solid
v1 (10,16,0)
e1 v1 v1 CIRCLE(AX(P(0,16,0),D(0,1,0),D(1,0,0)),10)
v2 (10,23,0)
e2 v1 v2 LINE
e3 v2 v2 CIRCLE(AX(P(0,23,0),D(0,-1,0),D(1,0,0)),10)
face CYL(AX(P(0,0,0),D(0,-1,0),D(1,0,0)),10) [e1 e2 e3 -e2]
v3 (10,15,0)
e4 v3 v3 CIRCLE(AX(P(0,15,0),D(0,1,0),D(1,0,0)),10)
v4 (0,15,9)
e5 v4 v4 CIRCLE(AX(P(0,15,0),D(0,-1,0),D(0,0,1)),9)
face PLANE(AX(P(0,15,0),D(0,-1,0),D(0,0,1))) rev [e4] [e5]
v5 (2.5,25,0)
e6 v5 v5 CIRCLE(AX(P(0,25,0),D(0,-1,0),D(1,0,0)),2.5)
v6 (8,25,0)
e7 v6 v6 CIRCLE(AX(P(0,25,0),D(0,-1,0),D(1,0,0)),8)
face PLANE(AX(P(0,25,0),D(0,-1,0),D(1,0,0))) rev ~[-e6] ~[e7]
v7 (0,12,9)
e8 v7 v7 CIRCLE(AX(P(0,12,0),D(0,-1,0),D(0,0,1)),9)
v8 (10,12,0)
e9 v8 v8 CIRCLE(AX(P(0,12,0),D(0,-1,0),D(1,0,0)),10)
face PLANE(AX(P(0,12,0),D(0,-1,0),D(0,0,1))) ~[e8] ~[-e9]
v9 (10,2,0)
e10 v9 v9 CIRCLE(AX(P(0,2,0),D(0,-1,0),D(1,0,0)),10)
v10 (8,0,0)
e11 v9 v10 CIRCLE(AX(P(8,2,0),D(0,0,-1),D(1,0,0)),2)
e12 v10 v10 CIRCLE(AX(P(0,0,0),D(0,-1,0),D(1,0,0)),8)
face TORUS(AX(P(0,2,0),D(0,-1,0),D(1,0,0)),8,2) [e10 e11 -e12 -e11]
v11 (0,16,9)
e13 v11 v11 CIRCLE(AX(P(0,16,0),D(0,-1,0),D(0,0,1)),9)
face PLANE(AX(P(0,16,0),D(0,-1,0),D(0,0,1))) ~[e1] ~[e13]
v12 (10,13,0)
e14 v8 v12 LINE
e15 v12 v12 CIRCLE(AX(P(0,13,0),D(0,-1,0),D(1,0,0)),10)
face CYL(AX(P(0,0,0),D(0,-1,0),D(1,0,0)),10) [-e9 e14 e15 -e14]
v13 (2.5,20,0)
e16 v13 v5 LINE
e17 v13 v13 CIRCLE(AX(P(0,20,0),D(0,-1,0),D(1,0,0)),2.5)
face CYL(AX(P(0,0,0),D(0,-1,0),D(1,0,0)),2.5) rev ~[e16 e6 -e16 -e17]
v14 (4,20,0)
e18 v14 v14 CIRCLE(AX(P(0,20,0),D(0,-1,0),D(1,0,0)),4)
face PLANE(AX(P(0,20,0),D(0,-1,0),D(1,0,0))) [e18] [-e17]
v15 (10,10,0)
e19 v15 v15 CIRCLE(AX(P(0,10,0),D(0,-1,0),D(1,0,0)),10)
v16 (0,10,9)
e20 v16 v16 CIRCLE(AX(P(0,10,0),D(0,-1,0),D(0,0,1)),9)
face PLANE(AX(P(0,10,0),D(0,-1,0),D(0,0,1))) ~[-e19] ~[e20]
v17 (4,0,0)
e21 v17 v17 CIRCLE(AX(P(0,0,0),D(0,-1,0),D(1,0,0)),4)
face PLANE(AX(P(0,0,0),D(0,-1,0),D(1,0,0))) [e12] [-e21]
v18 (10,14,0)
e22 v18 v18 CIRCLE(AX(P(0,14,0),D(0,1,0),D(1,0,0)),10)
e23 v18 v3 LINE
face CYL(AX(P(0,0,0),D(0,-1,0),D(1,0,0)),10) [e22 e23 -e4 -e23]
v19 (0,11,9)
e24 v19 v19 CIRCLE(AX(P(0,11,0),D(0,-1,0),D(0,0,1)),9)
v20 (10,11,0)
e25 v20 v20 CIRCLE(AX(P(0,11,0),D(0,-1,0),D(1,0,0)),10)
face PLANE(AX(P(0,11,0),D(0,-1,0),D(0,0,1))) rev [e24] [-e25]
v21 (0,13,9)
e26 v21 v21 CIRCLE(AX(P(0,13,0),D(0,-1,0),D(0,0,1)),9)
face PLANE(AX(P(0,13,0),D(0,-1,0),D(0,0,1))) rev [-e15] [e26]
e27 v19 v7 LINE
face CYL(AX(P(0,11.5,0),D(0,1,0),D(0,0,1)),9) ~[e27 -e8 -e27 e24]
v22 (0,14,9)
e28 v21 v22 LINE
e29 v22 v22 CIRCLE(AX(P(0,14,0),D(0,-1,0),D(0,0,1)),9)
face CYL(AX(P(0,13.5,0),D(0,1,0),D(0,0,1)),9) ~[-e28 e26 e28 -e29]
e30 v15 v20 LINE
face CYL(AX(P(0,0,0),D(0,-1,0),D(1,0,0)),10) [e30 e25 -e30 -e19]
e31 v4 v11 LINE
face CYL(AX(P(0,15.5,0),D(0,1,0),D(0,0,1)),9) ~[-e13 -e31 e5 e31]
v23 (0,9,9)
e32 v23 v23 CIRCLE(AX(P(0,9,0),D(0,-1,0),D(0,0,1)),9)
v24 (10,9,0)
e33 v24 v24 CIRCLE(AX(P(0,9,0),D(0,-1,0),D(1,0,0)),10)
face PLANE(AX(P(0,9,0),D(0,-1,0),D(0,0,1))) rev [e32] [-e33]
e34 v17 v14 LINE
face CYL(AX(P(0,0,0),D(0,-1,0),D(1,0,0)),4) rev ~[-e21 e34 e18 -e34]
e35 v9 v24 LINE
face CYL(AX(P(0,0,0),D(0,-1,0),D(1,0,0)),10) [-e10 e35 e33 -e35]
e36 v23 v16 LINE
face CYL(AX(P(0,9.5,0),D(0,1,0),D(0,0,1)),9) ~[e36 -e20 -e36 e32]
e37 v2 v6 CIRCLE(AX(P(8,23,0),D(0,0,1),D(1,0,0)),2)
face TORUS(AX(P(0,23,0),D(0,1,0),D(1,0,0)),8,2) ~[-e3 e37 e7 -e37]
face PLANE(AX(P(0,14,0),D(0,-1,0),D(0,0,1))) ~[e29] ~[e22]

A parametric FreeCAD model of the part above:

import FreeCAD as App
import Part
import Sketcher
Q = App.Units.Quantity


def edges_at(feature, points):
    """Names of the edges that pass closest to the given points."""
    edges = feature.Shape.Edges
    near = lambda p: min(range(len(edges)), key=lambda i: edges[i].distToShape(Part.Vertex(*p))[0])
    return sorted({f"Edge{near(p) + 1}" for p in points})


def add_polygon(sketch, points):
    """Adds a closed chain of lines whose ends are joined by coincident constraints."""
    first, n = sketch.GeometryCount, len(points)
    for a, b in zip(points, points[1:] + points[:1]):
        sketch.addGeometry(Part.LineSegment(App.Vector(*a, 0), App.Vector(*b, 0)), False)
    for i in range(n):
        sketch.addConstraint(Sketcher.Constraint("Coincident", first + i, 2, first + (i + 1) % n, 1))

doc = App.newDocument("Part")
body = doc.addObject("PartDesign::Body", "Body")

# Sketch on XZ plane
sketch1 = doc.addObject("Sketcher::SketchObject", "Sketch")
body.addObject(sketch1)
sketch1.AttachmentSupport = (doc.XZ_Plane, [""])
sketch1.MapMode = "FlatFace"
sketch1.addGeometry([
    Part.Circle(App.Vector(0, 0, 0), App.Vector(0, 0, 1), 10),
    Part.Circle(App.Vector(0, 0, 0), App.Vector(0, 0, 1), 2.5),
], False)
sketch1.addConstraint([
    Sketcher.Constraint("Coincident", 0, 3, -1, 1),
    Sketcher.Constraint("Coincident", 1, 3, -1, 1),
    Sketcher.Constraint("Diameter", 0, Q("20 mm")),
    Sketcher.Constraint("Diameter", 1, Q("5 mm")),
])
pad1 = doc.addObject("PartDesign::Pad", "Pad")
body.addObject(pad1)
pad1.Profile = sketch1
pad1.Length = 25
pad1.Reversed = True

# Sketch on YZ plane
sketch2 = doc.addObject("Sketcher::SketchObject", "Sketch001")
body.addObject(sketch2)
sketch2.AttachmentSupport = (doc.YZ_Plane, [""])
sketch2.MapMode = "FlatFace"
add_polygon(sketch2, [(11, 10), (11, 9), (12, 9), (12, 10)])  # lines 0-3
add_polygon(sketch2, [(9, 10), (9, 9), (10, 9), (10, 10)])  # lines 4-7
add_polygon(sketch2, [(13, 10), (13, 9), (14, 9), (14, 10)])  # lines 8-11
add_polygon(sketch2, [(15, 10), (15, 9), (16, 9), (16, 10)])  # lines 12-15
sketch2.addConstraint([
    Sketcher.Constraint("Vertical", 0),
    Sketcher.Constraint("Horizontal", 1),
    Sketcher.Constraint("Vertical", 2),
    Sketcher.Constraint("Horizontal", 3),
    Sketcher.Constraint("Vertical", 4),
    Sketcher.Constraint("Horizontal", 5),
    Sketcher.Constraint("Vertical", 6),
    Sketcher.Constraint("Horizontal", 7),
    Sketcher.Constraint("Vertical", 8),
    Sketcher.Constraint("Horizontal", 9),
    Sketcher.Constraint("Vertical", 10),
    Sketcher.Constraint("Horizontal", 11),
    Sketcher.Constraint("Vertical", 12),
    Sketcher.Constraint("Horizontal", 13),
    Sketcher.Constraint("Vertical", 14),
    Sketcher.Constraint("Horizontal", 15),
    Sketcher.Constraint("Horizontal", 1, 2, 4, 2),
    Sketcher.Constraint("Horizontal", 3, 2, 6, 2),
    Sketcher.Constraint("Horizontal", 5, 2, 8, 2),
    Sketcher.Constraint("Horizontal", 7, 2, 10, 2),
    Sketcher.Constraint("Horizontal", 9, 2, 12, 2),
    Sketcher.Constraint("Horizontal", 11, 2, 14, 2),
    Sketcher.Constraint("Equal", 3, 5),
    Sketcher.Constraint("Equal", 7, 9),
    Sketcher.Constraint("Equal", 11, 13),
    Sketcher.Constraint("Equal", 15, 0),
    Sketcher.Constraint("DistanceX", 1, 1, 1, 2, Q("1 mm")),
    Sketcher.Constraint("DistanceX", -1, 1, 0, 2, Q("11 mm")),
    Sketcher.Constraint("DistanceY", -1, 1, 0, 2, Q("9 mm")),
    Sketcher.Constraint("DistanceX", -1, 1, 4, 2, Q("9 mm")),
    Sketcher.Constraint("DistanceX", -1, 1, 8, 2, Q("13 mm")),
    Sketcher.Constraint("DistanceX", -1, 1, 12, 2, Q("15 mm")),
])
groove = doc.addObject("PartDesign::Groove", "Groove")
body.addObject(groove)
groove.Profile = sketch2
groove.ReferenceAxis = (sketch2, ["H_Axis"])
groove.Angle = 360
doc.recompute()

fillet = doc.addObject("PartDesign::Fillet", "Fillet")
body.addObject(fillet)
fillet.Base = (groove, edges_at(groove, [(-10, 0, 0), (-10, 25, 0)]))
fillet.Radius = 2

# Sketch on XZ plane
sketch3 = doc.addObject("Sketcher::SketchObject", "Sketch002")
body.addObject(sketch3)
sketch3.AttachmentSupport = (doc.XZ_Plane, [""])
sketch3.MapMode = "FlatFace"
sketch3.addGeometry(Part.Circle(App.Vector(0, 0, 0), App.Vector(0, 0, 1), 4), False)
sketch3.addConstraint([
    Sketcher.Constraint("Coincident", 0, 3, -1, 1),
    Sketcher.Constraint("Diameter", 0, Q("8 mm")),
])
pocket1 = doc.addObject("PartDesign::Pocket", "Pocket")
body.addObject(pocket1)
pocket1.Profile = sketch3
pocket1.Length = 20

doc.recompute()
